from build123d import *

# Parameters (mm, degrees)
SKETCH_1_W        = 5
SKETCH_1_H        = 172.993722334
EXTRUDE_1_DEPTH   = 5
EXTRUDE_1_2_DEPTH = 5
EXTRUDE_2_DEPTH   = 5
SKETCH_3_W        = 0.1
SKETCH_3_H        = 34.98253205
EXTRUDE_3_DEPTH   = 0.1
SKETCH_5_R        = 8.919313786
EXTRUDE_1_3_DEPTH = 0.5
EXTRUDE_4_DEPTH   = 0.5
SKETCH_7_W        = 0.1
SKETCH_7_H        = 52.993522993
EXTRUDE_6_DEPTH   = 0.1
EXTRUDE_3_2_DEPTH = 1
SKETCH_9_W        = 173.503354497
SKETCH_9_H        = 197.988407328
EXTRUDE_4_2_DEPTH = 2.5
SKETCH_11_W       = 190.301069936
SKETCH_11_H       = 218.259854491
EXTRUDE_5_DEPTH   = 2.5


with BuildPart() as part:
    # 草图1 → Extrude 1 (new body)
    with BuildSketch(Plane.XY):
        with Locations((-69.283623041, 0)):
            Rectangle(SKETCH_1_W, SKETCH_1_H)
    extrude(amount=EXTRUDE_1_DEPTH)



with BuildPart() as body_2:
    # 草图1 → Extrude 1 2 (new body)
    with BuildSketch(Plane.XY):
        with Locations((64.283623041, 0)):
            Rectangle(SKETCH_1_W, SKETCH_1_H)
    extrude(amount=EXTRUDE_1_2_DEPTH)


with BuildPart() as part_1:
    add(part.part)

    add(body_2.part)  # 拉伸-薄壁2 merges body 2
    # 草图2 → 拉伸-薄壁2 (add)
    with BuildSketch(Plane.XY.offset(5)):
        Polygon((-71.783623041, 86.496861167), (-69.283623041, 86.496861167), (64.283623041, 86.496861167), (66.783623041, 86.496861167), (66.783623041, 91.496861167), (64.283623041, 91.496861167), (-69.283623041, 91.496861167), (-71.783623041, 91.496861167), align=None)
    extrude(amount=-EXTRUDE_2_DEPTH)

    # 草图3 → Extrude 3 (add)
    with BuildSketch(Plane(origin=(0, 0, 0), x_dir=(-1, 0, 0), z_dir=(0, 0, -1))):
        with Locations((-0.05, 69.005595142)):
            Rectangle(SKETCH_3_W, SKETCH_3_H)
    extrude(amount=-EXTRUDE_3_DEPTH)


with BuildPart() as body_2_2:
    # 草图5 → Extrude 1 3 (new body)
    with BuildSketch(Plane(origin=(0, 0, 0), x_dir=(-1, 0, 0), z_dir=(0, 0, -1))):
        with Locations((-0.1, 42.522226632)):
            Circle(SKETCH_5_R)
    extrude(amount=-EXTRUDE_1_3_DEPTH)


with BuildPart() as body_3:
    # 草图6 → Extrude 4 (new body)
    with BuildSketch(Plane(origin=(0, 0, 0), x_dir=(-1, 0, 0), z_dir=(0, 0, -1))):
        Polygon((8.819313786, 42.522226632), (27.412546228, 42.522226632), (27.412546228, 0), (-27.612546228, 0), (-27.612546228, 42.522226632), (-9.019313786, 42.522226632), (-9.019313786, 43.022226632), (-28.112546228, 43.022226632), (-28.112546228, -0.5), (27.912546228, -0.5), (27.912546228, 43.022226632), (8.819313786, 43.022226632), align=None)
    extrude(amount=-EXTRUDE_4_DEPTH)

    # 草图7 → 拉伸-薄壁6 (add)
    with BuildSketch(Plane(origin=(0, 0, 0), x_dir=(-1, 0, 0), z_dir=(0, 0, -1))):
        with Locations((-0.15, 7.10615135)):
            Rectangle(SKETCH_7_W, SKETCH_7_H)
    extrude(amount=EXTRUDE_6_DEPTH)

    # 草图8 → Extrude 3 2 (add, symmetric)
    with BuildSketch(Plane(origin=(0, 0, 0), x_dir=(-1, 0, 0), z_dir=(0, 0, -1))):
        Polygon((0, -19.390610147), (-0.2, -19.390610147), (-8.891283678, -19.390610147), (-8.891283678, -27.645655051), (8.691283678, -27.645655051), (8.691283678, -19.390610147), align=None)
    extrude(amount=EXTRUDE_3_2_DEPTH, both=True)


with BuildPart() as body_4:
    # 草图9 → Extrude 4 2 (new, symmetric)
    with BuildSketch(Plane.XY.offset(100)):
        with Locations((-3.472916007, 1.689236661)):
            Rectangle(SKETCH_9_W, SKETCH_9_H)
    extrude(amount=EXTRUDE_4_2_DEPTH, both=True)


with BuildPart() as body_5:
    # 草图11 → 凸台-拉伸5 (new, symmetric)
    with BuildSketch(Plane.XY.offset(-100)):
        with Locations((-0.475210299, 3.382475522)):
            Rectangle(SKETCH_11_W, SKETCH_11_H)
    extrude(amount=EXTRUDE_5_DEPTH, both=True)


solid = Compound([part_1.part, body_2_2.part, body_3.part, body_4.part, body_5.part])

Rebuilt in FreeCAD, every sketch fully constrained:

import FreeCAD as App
import Part
import Sketcher
Q = App.Units.Quantity

doc = App.newDocument("Part")
body = doc.addObject("PartDesign::Body", "Body")

# Sketch on XY plane
sketch1 = body.newObject("Sketcher::SketchObject", "Sketch")
sketch1.AttachmentSupport = (doc.getObject("XY_Plane"), [""])
sketch1.MapMode = "FlatFace"
sketch1.addGeometry(Part.LineSegment(App.Vector(-72, 86, 0), App.Vector(-72, -86, 0)), False)
sketch1.addGeometry(Part.LineSegment(App.Vector(-72, -86, 0), App.Vector(-67, -86, 0)), False)
sketch1.addGeometry(Part.LineSegment(App.Vector(-67, -86, 0), App.Vector(-67, 86, 0)), False)
sketch1.addGeometry(Part.LineSegment(App.Vector(-67, 86, 0), App.Vector(-72, 86, 0)), False)
sketch1.addConstraint(Sketcher.Constraint("Coincident", 0, 2, 1, 1))
sketch1.addConstraint(Sketcher.Constraint("Coincident", 1, 2, 2, 1))
sketch1.addConstraint(Sketcher.Constraint("Coincident", 2, 2, 3, 1))
sketch1.addConstraint(Sketcher.Constraint("Coincident", 3, 2, 0, 1))
sketch1.addConstraint(Sketcher.Constraint("Vertical", 0))
sketch1.addConstraint(Sketcher.Constraint("Horizontal", 1))
sketch1.addConstraint(Sketcher.Constraint("Vertical", 2))
sketch1.addConstraint(Sketcher.Constraint("Horizontal", 3))
sketch1.addConstraint(Sketcher.Constraint("DistanceX", 1, 1, 1, 2, Q("5 mm")))
sketch1.addConstraint(Sketcher.Constraint("DistanceY", 0, 2, 0, 1, Q("172.993722 mm")))
sketch1.addConstraint(Sketcher.Constraint("DistanceY", 0, 2, -1, 1, Q("86.496861 mm")))
sketch1.addConstraint(Sketcher.Constraint("DistanceX", 0, 2, -1, 1, Q("71.783623 mm")))
pad1 = body.newObject("PartDesign::Pad", "Pad")
pad1.Profile = sketch1
pad1.Length = 5
body2 = doc.addObject("PartDesign::Body", "Body001")

# Sketch on XY plane
sketch2 = body2.newObject("Sketcher::SketchObject", "Sketch001")
sketch2.AttachmentSupport = (doc.getObject("XY_Plane001"), [""])
sketch2.MapMode = "FlatFace"
sketch2.addGeometry(Part.LineSegment(App.Vector(62, 86, 0), App.Vector(62, -86, 0)), False)
sketch2.addGeometry(Part.LineSegment(App.Vector(62, -86, 0), App.Vector(67, -86, 0)), False)
sketch2.addGeometry(Part.LineSegment(App.Vector(67, -86, 0), App.Vector(67, 86, 0)), False)
sketch2.addGeometry(Part.LineSegment(App.Vector(67, 86, 0), App.Vector(62, 86, 0)), False)
sketch2.addConstraint(Sketcher.Constraint("Coincident", 0, 2, 1, 1))
sketch2.addConstraint(Sketcher.Constraint("Coincident", 1, 2, 2, 1))
sketch2.addConstraint(Sketcher.Constraint("Coincident", 2, 2, 3, 1))
sketch2.addConstraint(Sketcher.Constraint("Coincident", 3, 2, 0, 1))
sketch2.addConstraint(Sketcher.Constraint("Vertical", 0))
sketch2.addConstraint(Sketcher.Constraint("Horizontal", 1))
sketch2.addConstraint(Sketcher.Constraint("Vertical", 2))
sketch2.addConstraint(Sketcher.Constraint("Horizontal", 3))
sketch2.addConstraint(Sketcher.Constraint("DistanceX", 1, 1, 1, 2, Q("5 mm")))
sketch2.addConstraint(Sketcher.Constraint("DistanceY", 0, 2, 0, 1, Q("172.993722 mm")))
sketch2.addConstraint(Sketcher.Constraint("DistanceY", 0, 2, -1, 1, Q("86.496861 mm")))
sketch2.addConstraint(Sketcher.Constraint("DistanceX", -1, 1, 0, 2, Q("61.783623 mm")))
pad2 = body2.newObject("PartDesign::Pad", "Pad001")
pad2.Profile = sketch2
pad2.Length = 5
body.AllowCompound = True
doc.recompute()

boolean = body.newObject("PartDesign::Boolean", "Boolean")
boolean.Type = "Fuse"
boolean.addObjects([body2])

# Sketch on XY plane
sketch3 = body.newObject("Sketcher::SketchObject", "Sketch002")
sketch3.AttachmentSupport = (doc.getObject("XY_Plane"), [""])
sketch3.MapMode = "FlatFace"
sketch3.AttachmentOffset = App.Placement(App.Vector(0, 0, 5), App.Rotation())
sketch3.addGeometry(Part.LineSegment(App.Vector(-72, 86, 0), App.Vector(67, 86, 0)), False)
sketch3.addGeometry(Part.LineSegment(App.Vector(67, 86, 0), App.Vector(67, 91, 0)), False)
sketch3.addGeometry(Part.LineSegment(App.Vector(67, 91, 0), App.Vector(-72, 91, 0)), False)
sketch3.addGeometry(Part.LineSegment(App.Vector(-72, 91, 0), App.Vector(-72, 86, 0)), False)
sketch3.addConstraint(Sketcher.Constraint("Coincident", 0, 2, 1, 1))
sketch3.addConstraint(Sketcher.Constraint("Coincident", 1, 2, 2, 1))
sketch3.addConstraint(Sketcher.Constraint("Coincident", 2, 2, 3, 1))
sketch3.addConstraint(Sketcher.Constraint("Coincident", 3, 2, 0, 1))
sketch3.addConstraint(Sketcher.Constraint("Horizontal", 0))
sketch3.addConstraint(Sketcher.Constraint("Vertical", 1))
sketch3.addConstraint(Sketcher.Constraint("Horizontal", 2))
sketch3.addConstraint(Sketcher.Constraint("Vertical", 3))
sketch3.addConstraint(Sketcher.Constraint("DistanceY", 1, 1, 1, 2, Q("5 mm")))
sketch3.addConstraint(Sketcher.Constraint("DistanceX", 0, 1, 0, 2, Q("138.567246 mm")))
sketch3.addConstraint(Sketcher.Constraint("DistanceY", -1, 1, 0, 2, Q("86.496861 mm")))
sketch3.addConstraint(Sketcher.Constraint("DistanceX", -1, 1, 0, 2, Q("66.783623 mm")))
pad3 = body.newObject("PartDesign::Pad", "Pad002")
pad3.Profile = sketch3
pad3.Length = 5
pad3.Reversed = True

# Sketch on XY plane
sketch4 = body.newObject("Sketcher::SketchObject", "Sketch003")
sketch4.AttachmentSupport = (doc.getObject("XY_Plane"), [""])
sketch4.MapMode = "FlatFace"
sketch4.addGeometry(Part.LineSegment(App.Vector(0.1, 86.5, 0), App.Vector(0.1, 51.51, 0)), False)
sketch4.addGeometry(Part.LineSegment(App.Vector(0.1, 51.51, 0), App.Vector(0, 51.51, 0)), False)
sketch4.addGeometry(Part.LineSegment(App.Vector(0, 51.51, 0), App.Vector(0, 86.5, 0)), False)
sketch4.addGeometry(Part.LineSegment(App.Vector(0, 86.5, 0), App.Vector(0.1, 86.5, 0)), False)
sketch4.addConstraint(Sketcher.Constraint("Coincident", 0, 2, 1, 1))
sketch4.addConstraint(Sketcher.Constraint("Coincident", 1, 2, 2, 1))
sketch4.addConstraint(Sketcher.Constraint("Coincident", 2, 2, 3, 1))
sketch4.addConstraint(Sketcher.Constraint("Coincident", 3, 2, 0, 1))
sketch4.addConstraint(Sketcher.Constraint("Vertical", 0))
sketch4.addConstraint(Sketcher.Constraint("Horizontal", 1))
sketch4.addConstraint(Sketcher.Constraint("Vertical", 2))
sketch4.addConstraint(Sketcher.Constraint("Horizontal", 3))
sketch4.addConstraint(Sketcher.Constraint("PointOnObject", 1, 2, -2))
sketch4.addConstraint(Sketcher.Constraint("DistanceX", 1, 2, 1, 1, Q("0.1 mm")))
sketch4.addConstraint(Sketcher.Constraint("DistanceY", 0, 2, 0, 1, Q("34.982532 mm")))
sketch4.addConstraint(Sketcher.Constraint("DistanceY", -1, 1, 0, 2, Q("51.514329 mm")))
pad4 = body.newObject("PartDesign::Pad", "Pad003")
pad4.Profile = sketch4
pad4.Length = 0.1
body3 = doc.addObject("PartDesign::Body", "Body002")

# Sketch on XY plane
sketch5 = body3.newObject("Sketcher::SketchObject", "Sketch004")
sketch5.AttachmentSupport = (doc.getObject("XY_Plane002"), [""])
sketch5.MapMode = "FlatFace"
sketch5.addGeometry(Part.Circle(App.Vector(0, 43, 0), App.Vector(0, 0, 1), 9), False)
sketch5.addConstraint(Sketcher.Constraint("DistanceX", -1, 1, 0, 3, Q("0.1 mm")))
sketch5.addConstraint(Sketcher.Constraint("Diameter", 0, Q("17.838628 mm")))
sketch5.addConstraint(Sketcher.Constraint("DistanceY", -1, 1, 0, 3, Q("42.522227 mm")))
pad5 = body3.newObject("PartDesign::Pad", "Pad004")
pad5.Profile = sketch5
pad5.Length = 0.5
body4 = doc.addObject("PartDesign::Body", "Body003")

# Sketch on XY plane
sketch6 = body4.newObject("Sketcher::SketchObject", "Sketch005")
sketch6.AttachmentSupport = (doc.getObject("XY_Plane003"), [""])
sketch6.MapMode = "FlatFace"
sketch6.addGeometry(Part.LineSegment(App.Vector(-8.8, 42.5, 0), App.Vector(-27.4, 42.5, 0)), False)
sketch6.addGeometry(Part.LineSegment(App.Vector(-27.4, 42.5, 0), App.Vector(-27.4, 0, 0)), False)
sketch6.addGeometry(Part.LineSegment(App.Vector(-27.4, 0, 0), App.Vector(27.6, 0, 0)), False)
sketch6.addGeometry(Part.LineSegment(App.Vector(27.6, 0, 0), App.Vector(27.6, 42.5, 0)), False)
sketch6.addGeometry(Part.LineSegment(App.Vector(27.6, 42.5, 0), App.Vector(9, 42.5, 0)), False)
sketch6.addGeometry(Part.LineSegment(App.Vector(9, 42.5, 0), App.Vector(9, 43, 0)), False)
sketch6.addGeometry(Part.LineSegment(App.Vector(9, 43, 0), App.Vector(28.1, 43, 0)), False)
sketch6.addGeometry(Part.LineSegment(App.Vector(28.1, 43, 0), App.Vector(28.1, -0.5, 0)), False)
sketch6.addGeometry(Part.LineSegment(App.Vector(28.1, -0.5, 0), App.Vector(-27.9, -0.5, 0)), False)
sketch6.addGeometry(Part.LineSegment(App.Vector(-27.9, -0.5, 0), App.Vector(-27.9, 43, 0)), False)
sketch6.addGeometry(Part.LineSegment(App.Vector(-27.9, 43, 0), App.Vector(-8.8, 43, 0)), False)
sketch6.addGeometry(Part.LineSegment(App.Vector(-8.8, 43, 0), App.Vector(-8.8, 42.5, 0)), False)
sketch6.addConstraint(Sketcher.Constraint("Coincident", 0, 2, 1, 1))
sketch6.addConstraint(Sketcher.Constraint("Coincident", 1, 2, 2, 1))
sketch6.addConstraint(Sketcher.Constraint("Coincident", 2, 2, 3, 1))
sketch6.addConstraint(Sketcher.Constraint("Coincident", 3, 2, 4, 1))
sketch6.addConstraint(Sketcher.Constraint("Coincident", 4, 2, 5, 1))
sketch6.addConstraint(Sketcher.Constraint("Coincident", 5, 2, 6, 1))
sketch6.addConstraint(Sketcher.Constraint("Coincident", 6, 2, 7, 1))
sketch6.addConstraint(Sketcher.Constraint("Coincident", 7, 2, 8, 1))
sketch6.addConstraint(Sketcher.Constraint("Coincident", 8, 2, 9, 1))
sketch6.addConstraint(Sketcher.Constraint("Coincident", 9, 2, 10, 1))
sketch6.addConstraint(Sketcher.Constraint("Coincident", 10, 2, 11, 1))
sketch6.addConstraint(Sketcher.Constraint("Coincident", 11, 2, 0, 1))
sketch6.addConstraint(Sketcher.Constraint("Horizontal", 0))
sketch6.addConstraint(Sketcher.Constraint("Vertical", 1))
sketch6.addConstraint(Sketcher.Constraint("Horizontal", 2))
sketch6.addConstraint(Sketcher.Constraint("Vertical", 3))
sketch6.addConstraint(Sketcher.Constraint("Horizontal", 4))
sketch6.addConstraint(Sketcher.Constraint("Vertical", 5))
sketch6.addConstraint(Sketcher.Constraint("Horizontal", 6))
sketch6.addConstraint(Sketcher.Constraint("Vertical", 7))
sketch6.addConstraint(Sketcher.Constraint("Horizontal", 8))
sketch6.addConstraint(Sketcher.Constraint("Vertical", 9))
sketch6.addConstraint(Sketcher.Constraint("Horizontal", 10))
sketch6.addConstraint(Sketcher.Constraint("Vertical", 11))
sketch6.addConstraint(Sketcher.Constraint("PointOnObject", 1, 2, -1))
sketch6.addConstraint(Sketcher.Constraint("Horizontal", 0, 2, 3, 2))
sketch6.addConstraint(Sketcher.Constraint("Horizontal", 6, 2, 9, 2))
sketch6.addConstraint(Sketcher.Constraint("Equal", 0, 4))
sketch6.addConstraint(Sketcher.Constraint("Equal", 6, 10))
sketch6.addConstraint(Sketcher.Constraint("DistanceY", 5, 1, 5, 2, Q("0.5 mm")))
sketch6.addConstraint(Sketcher.Constraint("DistanceY", 7, 2, -1, 1, Q("0.5 mm")))
sketch6.addConstraint(Sketcher.Constraint("DistanceX", 3, 2, 6, 2, Q("0.5 mm")))
sketch6.addConstraint(Sketcher.Constraint("DistanceX", 0, 2, 0, 1, Q("18.593232 mm")))
sketch6.addConstraint(Sketcher.Constraint("DistanceX", 2, 1, 2, 2, Q("55.025092 mm")))
sketch6.addConstraint(Sketcher.Constraint("DistanceY", 1, 2, 1, 1, Q("42.522227 mm")))
sketch6.addConstraint(Sketcher.Constraint("DistanceX", 0, 2, -1, 1, Q("27.412546 mm")))
pad6 = body4.newObject("PartDesign::Pad", "Pad005")
pad6.Profile = sketch6
pad6.Length = 0.5

# Sketch on XY plane
sketch7 = body4.newObject("Sketcher::SketchObject", "Sketch006")
sketch7.AttachmentSupport = (doc.getObject("XY_Plane003"), [""])
sketch7.MapMode = "FlatFace"
sketch7.addGeometry(Part.LineSegment(App.Vector(0.2, 33.6, 0), App.Vector(0.2, -19.39, 0)), False)
sketch7.addGeometry(Part.LineSegment(App.Vector(0.2, -19.39, 0), App.Vector(0.1, -19.39, 0)), False)
sketch7.addGeometry(Part.LineSegment(App.Vector(0.1, -19.39, 0), App.Vector(0.1, 33.6, 0)), False)
sketch7.addGeometry(Part.LineSegment(App.Vector(0.1, 33.6, 0), App.Vector(0.2, 33.6, 0)), False)
sketch7.addConstraint(Sketcher.Constraint("Coincident", 0, 2, 1, 1))
sketch7.addConstraint(Sketcher.Constraint("Coincident", 1, 2, 2, 1))
sketch7.addConstraint(Sketcher.Constraint("Coincident", 2, 2, 3, 1))
sketch7.addConstraint(Sketcher.Constraint("Coincident", 3, 2, 0, 1))
sketch7.addConstraint(Sketcher.Constraint("Vertical", 0))
sketch7.addConstraint(Sketcher.Constraint("Horizontal", 1))
sketch7.addConstraint(Sketcher.Constraint("Vertical", 2))
sketch7.addConstraint(Sketcher.Constraint("Horizontal", 3))
sketch7.addConstraint(Sketcher.Constraint("DistanceX", 1, 2, 1, 1, Q("0.1 mm")))
sketch7.addConstraint(Sketcher.Constraint("DistanceX", -1, 1, 0, 2, Q("0.2 mm")))
sketch7.addConstraint(Sketcher.Constraint("DistanceY", 0, 2, 0, 1, Q("52.993523 mm")))
sketch7.addConstraint(Sketcher.Constraint("DistanceY", 0, 2, -1, 1, Q("19.39061 mm")))
pad7 = body4.newObject("PartDesign::Pad", "Pad006")
pad7.Profile = sketch7
pad7.Length = 0.1
pad7.Reversed = True

# Sketch on XY plane
sketch8 = body4.newObject("Sketcher::SketchObject", "Sketch007")
sketch8.AttachmentSupport = (doc.getObject("XY_Plane003"), [""])
sketch8.MapMode = "FlatFace"
sketch8.addGeometry(Part.LineSegment(App.Vector(9, -19, 0), App.Vector(9, -28, 0)), False)
sketch8.addGeometry(Part.LineSegment(App.Vector(9, -28, 0), App.Vector(-9, -28, 0)), False)
sketch8.addGeometry(Part.LineSegment(App.Vector(-9, -28, 0), App.Vector(-9, -19, 0)), False)
sketch8.addGeometry(Part.LineSegment(App.Vector(-9, -19, 0), App.Vector(9, -19, 0)), False)
sketch8.addConstraint(Sketcher.Constraint("Coincident", 0, 2, 1, 1))
sketch8.addConstraint(Sketcher.Constraint("Coincident", 1, 2, 2, 1))
sketch8.addConstraint(Sketcher.Constraint("Coincident", 2, 2, 3, 1))
sketch8.addConstraint(Sketcher.Constraint("Coincident", 3, 2, 0, 1))
sketch8.addConstraint(Sketcher.Constraint("Vertical", 0))
sketch8.addConstraint(Sketcher.Constraint("Horizontal", 1))
sketch8.addConstraint(Sketcher.Constraint("Vertical", 2))
sketch8.addConstraint(Sketcher.Constraint("Horizontal", 3))
sketch8.addConstraint(Sketcher.Constraint("DistanceX", 1, 2, 1, 1, Q("17.582567 mm")))
sketch8.addConstraint(Sketcher.Constraint("DistanceY", 0, 2, 0, 1, Q("8.255045 mm")))
sketch8.addConstraint(Sketcher.Constraint("DistanceY", 2, 2, -1, 1, Q("19.39061 mm")))
sketch8.addConstraint(Sketcher.Constraint("DistanceX", -1, 1, 0, 2, Q("8.891284 mm")))
pad8 = body4.newObject("PartDesign::Pad", "Pad007")
pad8.Profile = sketch8
pad8.Length = 2
pad8.Midplane = True
body5 = doc.addObject("PartDesign::Body", "Body004")

# Sketch on XY plane
sketch9 = body5.newObject("Sketcher::SketchObject", "Sketch008")
sketch9.AttachmentSupport = (doc.getObject("XY_Plane004"), [""])
sketch9.MapMode = "FlatFace"
sketch9.AttachmentOffset = App.Placement(App.Vector(0, 0, 100), App.Rotation())
sketch9.addGeometry(Part.LineSegment(App.Vector(-90, 101, 0), App.Vector(-90, -97, 0)), False)
sketch9.addGeometry(Part.LineSegment(App.Vector(-90, -97, 0), App.Vector(83, -97, 0)), False)
sketch9.addGeometry(Part.LineSegment(App.Vector(83, -97, 0), App.Vector(83, 101, 0)), False)
sketch9.addGeometry(Part.LineSegment(App.Vector(83, 101, 0), App.Vector(-90, 101, 0)), False)
sketch9.addConstraint(Sketcher.Constraint("Coincident", 0, 2, 1, 1))
sketch9.addConstraint(Sketcher.Constraint("Coincident", 1, 2, 2, 1))
sketch9.addConstraint(Sketcher.Constraint("Coincident", 2, 2, 3, 1))
sketch9.addConstraint(Sketcher.Constraint("Coincident", 3, 2, 0, 1))
sketch9.addConstraint(Sketcher.Constraint("Vertical", 0))
sketch9.addConstraint(Sketcher.Constraint("Horizontal", 1))
sketch9.addConstraint(Sketcher.Constraint("Vertical", 2))
sketch9.addConstraint(Sketcher.Constraint("Horizontal", 3))
sketch9.addConstraint(Sketcher.Constraint("DistanceX", 1, 1, 1, 2, Q("173.503354 mm")))
sketch9.addConstraint(Sketcher.Constraint("DistanceY", 0, 2, 0, 1, Q("197.988407 mm")))
sketch9.addConstraint(Sketcher.Constraint("DistanceX", -1, 1, 1, 2, Q("83.278761 mm")))
sketch9.addConstraint(Sketcher.Constraint("DistanceY", -1, 1, 2, 2, Q("100.68344 mm")))
pad9 = body5.newObject("PartDesign::Pad", "Pad008")
pad9.Profile = sketch9
pad9.Length = 5
pad9.Midplane = True
body6 = doc.addObject("PartDesign::Body", "Body005")

# Sketch on XY plane
sketch10 = body6.newObject("Sketcher::SketchObject", "Sketch009")
sketch10.AttachmentSupport = (doc.getObject("XY_Plane005"), [""])
sketch10.MapMode = "FlatFace"
sketch10.AttachmentOffset = App.Placement(App.Vector(0, 0, -100), App.Rotation())
sketch10.addGeometry(Part.LineSegment(App.Vector(-96, 113, 0), App.Vector(-96, -106, 0)), False)
sketch10.addGeometry(Part.LineSegment(App.Vector(-96, -106, 0), App.Vector(95, -106, 0)), False)
sketch10.addGeometry(Part.LineSegment(App.Vector(95, -106, 0), App.Vector(95, 113, 0)), False)
sketch10.addGeometry(Part.LineSegment(App.Vector(95, 113, 0), App.Vector(-96, 113, 0)), False)
sketch10.addConstraint(Sketcher.Constraint("Coincident", 0, 2, 1, 1))
sketch10.addConstraint(Sketcher.Constraint("Coincident", 1, 2, 2, 1))
sketch10.addConstraint(Sketcher.Constraint("Coincident", 2, 2, 3, 1))
sketch10.addConstraint(Sketcher.Constraint("Coincident", 3, 2, 0, 1))
sketch10.addConstraint(Sketcher.Constraint("Vertical", 0))
sketch10.addConstraint(Sketcher.Constraint("Horizontal", 1))
sketch10.addConstraint(Sketcher.Constraint("Vertical", 2))
sketch10.addConstraint(Sketcher.Constraint("Horizontal", 3))
sketch10.addConstraint(Sketcher.Constraint("DistanceX", 1, 1, 1, 2, Q("190.30107 mm")))
sketch10.addConstraint(Sketcher.Constraint("DistanceY", 0, 2, 0, 1, Q("218.259854 mm")))
sketch10.addConstraint(Sketcher.Constraint("DistanceY", 0, 2, -1, 1, Q("105.747452 mm")))
sketch10.addConstraint(Sketcher.Constraint("DistanceX", 0, 2, -1, 1, Q("95.625745 mm")))
pad10 = body6.newObject("PartDesign::Pad", "Pad009")
pad10.Profile = sketch10
pad10.Length = 5
pad10.Midplane = True

doc.recompute()
